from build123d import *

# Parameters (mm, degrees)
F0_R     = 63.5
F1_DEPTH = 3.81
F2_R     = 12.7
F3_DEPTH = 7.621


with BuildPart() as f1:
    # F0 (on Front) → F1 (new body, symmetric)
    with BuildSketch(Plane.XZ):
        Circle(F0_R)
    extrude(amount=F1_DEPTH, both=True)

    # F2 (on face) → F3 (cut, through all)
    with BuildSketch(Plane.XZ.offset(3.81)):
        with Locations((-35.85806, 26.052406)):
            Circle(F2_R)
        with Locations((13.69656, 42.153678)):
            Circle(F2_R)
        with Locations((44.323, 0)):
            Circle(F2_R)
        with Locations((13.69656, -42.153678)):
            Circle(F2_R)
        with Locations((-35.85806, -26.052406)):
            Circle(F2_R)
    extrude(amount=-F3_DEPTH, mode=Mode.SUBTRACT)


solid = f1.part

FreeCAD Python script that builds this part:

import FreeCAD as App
import Part
import Sketcher

V = App.Vector
Q = App.Units.Quantity

doc = App.newDocument("Part")
body = doc.addObject("PartDesign::Body", "Body")

sketch1 = body.newObject("Sketcher::SketchObject", "Sketch")
sketch1.AttachmentSupport = (doc.getObject("XZ_Plane"), [""])
sketch1.MapMode = "FlatFace"
sketch1.addGeometry(Part.Circle(V(0, 0, 0), V(0, 0, 1), 64), False)
sketch1.addConstraint([
    Sketcher.Constraint("Coincident", 0, 3, -1, 1),
    Sketcher.Constraint("Diameter", 0, Q("5 in")),
])
pad1 = body.newObject("PartDesign::Pad", "Pad")
pad1.Profile = sketch1
pad1.Length = Q("0.3 in")
pad1.Midplane = True

sketch2 = body.newObject("Sketcher::SketchObject", "Sketch001")
sketch2.AttachmentSupport = (doc.getObject("XZ_Plane"), [""])
sketch2.MapMode = "FlatFace"
sketch2.AttachmentOffset = App.Placement(V(0, 0, 0.15 * 25.4), App.Rotation())
sketch2.addGeometry([
    Part.Circle(V(-36, 26, 0), V(0, 0, 1), 13),
    Part.Circle(V(14, 42, 0), V(0, 0, 1), 13),
    Part.Circle(V(44, 0, 0), V(0, 0, 1), 13),
    Part.Circle(V(14, -42, 0), V(0, 0, 1), 13),
    Part.Circle(V(-36, -26, 0), V(0, 0, 1), 13),
], False)
sketch2.addConstraint([
    Sketcher.Constraint("Equal", 0, 1),
    Sketcher.Constraint("Equal", 1, 2),
    Sketcher.Constraint("Equal", 2, 3),
    Sketcher.Constraint("Equal", 3, 4),
    Sketcher.Constraint("Symmetric", 1, 3, 3, 3, -1),
    Sketcher.Constraint("Symmetric", 0, 3, 4, 3, -1),
    Sketcher.Constraint("PointOnObject", 2, 3, -1),
    Sketcher.Constraint("Diameter", 0, Q("1 in")),
    Sketcher.Constraint("DistanceX", -1, 1, 2, 3, Q("1.745 in")),
    Sketcher.Constraint("DistanceX", 0, 3, -1, 1, 35.85806),
    Sketcher.Constraint("DistanceX", -1, 1, 1, 3, 13.69656),
    Sketcher.Constraint("DistanceY", 0, 3, 1, 3, 16.101272),
    Sketcher.Constraint("DistanceY", -1, 1, 0, 3, 26.052406),
])
pocket1 = body.newObject("PartDesign::Pocket", "Pocket")
pocket1.Profile = sketch2
pocket1.Type = "ThroughAll"

doc.recompute()
